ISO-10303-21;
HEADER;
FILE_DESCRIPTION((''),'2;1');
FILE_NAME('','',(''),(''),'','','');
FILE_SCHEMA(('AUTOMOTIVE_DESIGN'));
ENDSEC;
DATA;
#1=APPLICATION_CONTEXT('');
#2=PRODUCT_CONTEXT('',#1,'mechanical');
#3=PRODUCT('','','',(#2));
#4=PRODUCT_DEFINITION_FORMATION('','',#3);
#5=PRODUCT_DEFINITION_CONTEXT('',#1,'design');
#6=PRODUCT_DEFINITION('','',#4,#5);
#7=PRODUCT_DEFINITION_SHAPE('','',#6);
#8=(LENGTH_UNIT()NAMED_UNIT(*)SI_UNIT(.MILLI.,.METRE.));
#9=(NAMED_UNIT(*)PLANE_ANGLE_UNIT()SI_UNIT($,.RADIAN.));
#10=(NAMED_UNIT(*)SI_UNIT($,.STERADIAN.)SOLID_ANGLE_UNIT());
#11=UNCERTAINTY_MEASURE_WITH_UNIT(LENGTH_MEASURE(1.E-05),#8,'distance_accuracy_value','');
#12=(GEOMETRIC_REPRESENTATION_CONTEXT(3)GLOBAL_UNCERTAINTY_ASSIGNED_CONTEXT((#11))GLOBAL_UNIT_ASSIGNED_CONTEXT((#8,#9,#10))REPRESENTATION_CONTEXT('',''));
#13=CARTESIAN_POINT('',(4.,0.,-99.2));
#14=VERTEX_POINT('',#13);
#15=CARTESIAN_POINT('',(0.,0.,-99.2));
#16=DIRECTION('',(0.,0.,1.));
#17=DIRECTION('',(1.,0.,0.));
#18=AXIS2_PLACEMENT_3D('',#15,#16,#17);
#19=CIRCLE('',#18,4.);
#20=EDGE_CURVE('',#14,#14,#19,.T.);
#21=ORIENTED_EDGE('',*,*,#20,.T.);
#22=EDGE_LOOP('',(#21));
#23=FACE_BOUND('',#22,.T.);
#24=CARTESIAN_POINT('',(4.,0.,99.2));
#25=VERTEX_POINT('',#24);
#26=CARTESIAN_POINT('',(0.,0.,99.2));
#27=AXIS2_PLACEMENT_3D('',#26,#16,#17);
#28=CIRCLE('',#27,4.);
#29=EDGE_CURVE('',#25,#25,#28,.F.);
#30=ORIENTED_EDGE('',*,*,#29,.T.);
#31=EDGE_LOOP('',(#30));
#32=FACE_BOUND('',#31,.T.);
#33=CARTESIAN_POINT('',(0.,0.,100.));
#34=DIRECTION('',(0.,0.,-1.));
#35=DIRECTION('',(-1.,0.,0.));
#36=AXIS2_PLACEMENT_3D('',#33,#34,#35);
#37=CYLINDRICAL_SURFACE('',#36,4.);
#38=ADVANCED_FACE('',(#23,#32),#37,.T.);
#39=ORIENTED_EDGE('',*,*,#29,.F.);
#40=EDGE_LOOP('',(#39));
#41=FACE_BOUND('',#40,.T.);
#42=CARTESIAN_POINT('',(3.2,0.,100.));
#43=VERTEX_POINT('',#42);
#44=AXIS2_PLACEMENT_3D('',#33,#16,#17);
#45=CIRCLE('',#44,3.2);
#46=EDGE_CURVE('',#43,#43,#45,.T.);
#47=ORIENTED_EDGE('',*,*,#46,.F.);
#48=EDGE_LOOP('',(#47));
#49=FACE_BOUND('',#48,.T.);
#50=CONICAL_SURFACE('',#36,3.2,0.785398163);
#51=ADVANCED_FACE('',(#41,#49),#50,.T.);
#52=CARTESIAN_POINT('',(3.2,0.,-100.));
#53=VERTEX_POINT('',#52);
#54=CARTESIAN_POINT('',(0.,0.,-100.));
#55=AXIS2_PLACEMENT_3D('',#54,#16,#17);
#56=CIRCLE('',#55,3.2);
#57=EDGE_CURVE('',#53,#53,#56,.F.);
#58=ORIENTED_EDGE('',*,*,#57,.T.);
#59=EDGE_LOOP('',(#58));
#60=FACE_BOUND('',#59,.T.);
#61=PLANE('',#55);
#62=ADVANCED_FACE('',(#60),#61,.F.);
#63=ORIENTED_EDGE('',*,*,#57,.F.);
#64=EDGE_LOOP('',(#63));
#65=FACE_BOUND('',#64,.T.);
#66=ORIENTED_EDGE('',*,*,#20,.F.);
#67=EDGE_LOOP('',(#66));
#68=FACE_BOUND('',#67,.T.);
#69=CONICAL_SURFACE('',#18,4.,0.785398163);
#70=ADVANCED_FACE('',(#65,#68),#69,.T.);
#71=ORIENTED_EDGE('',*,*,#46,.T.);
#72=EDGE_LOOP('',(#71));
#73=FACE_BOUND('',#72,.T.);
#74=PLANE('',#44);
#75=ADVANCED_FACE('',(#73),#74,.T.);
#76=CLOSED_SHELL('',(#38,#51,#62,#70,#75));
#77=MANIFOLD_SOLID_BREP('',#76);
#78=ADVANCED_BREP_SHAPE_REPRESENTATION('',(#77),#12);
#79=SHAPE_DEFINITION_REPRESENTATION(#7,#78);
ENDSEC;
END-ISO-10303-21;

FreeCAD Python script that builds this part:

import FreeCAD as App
import Part
import Sketcher

V = App.Vector


def edges_at(feature, points):
    """Names of the edges that pass closest to the given points."""
    edges = feature.Shape.Edges
    near = lambda p: min(range(len(edges)), key=lambda i: edges[i].distToShape(Part.Vertex(*p))[0])
    return sorted({f"Edge{near(p) + 1}" for p in points})

doc = App.newDocument("Part")
body = doc.addObject("PartDesign::Body", "Body")

# Sketch on XY plane
sketch1 = body.newObject("Sketcher::SketchObject", "Sketch")
sketch1.AttachmentSupport = (doc.getObject("XY_Plane"), [""])
sketch1.MapMode = "FlatFace"
sketch1.addGeometry(Part.Circle(V(0, 0, 0), V(0, 0, 1), 4), False)
sketch1.addConstraint([
    Sketcher.Constraint("Coincident", 0, 3, -1, 1),
    Sketcher.Constraint("Diameter", 0, 8.0),
])
pad1 = body.newObject("PartDesign::Pad", "Pad")
pad1.Profile = sketch1
pad1.Length = 200
pad1.Midplane = True
doc.recompute()

chamfer = body.newObject("PartDesign::Chamfer", "Chamfer")
chamfer.Base = (pad1, edges_at(pad1, [(-4, 0, -100), (-4, 0, 100)]))
chamfer.Size = 0.8

doc.recompute()
